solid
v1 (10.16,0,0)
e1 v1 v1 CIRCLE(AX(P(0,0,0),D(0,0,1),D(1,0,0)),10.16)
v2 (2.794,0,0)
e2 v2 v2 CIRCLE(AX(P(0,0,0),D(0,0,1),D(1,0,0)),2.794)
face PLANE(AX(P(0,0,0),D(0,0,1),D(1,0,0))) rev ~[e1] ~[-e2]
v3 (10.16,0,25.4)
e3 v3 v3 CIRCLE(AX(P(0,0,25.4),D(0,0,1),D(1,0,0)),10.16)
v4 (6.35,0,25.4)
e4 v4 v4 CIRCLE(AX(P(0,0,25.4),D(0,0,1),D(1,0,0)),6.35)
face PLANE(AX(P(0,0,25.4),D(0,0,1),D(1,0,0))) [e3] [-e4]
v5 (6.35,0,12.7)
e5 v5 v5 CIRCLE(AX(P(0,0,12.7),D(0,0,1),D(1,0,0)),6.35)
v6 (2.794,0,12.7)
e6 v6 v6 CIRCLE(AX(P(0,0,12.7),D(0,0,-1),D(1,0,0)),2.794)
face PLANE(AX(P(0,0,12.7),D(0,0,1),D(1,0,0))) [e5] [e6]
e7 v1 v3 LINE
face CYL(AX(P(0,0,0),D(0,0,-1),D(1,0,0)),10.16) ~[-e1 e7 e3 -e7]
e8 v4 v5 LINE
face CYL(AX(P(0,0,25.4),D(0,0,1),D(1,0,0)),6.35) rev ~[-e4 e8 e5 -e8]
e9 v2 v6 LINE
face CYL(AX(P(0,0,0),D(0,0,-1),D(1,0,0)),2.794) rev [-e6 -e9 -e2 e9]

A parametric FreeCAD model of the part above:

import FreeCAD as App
import Part
import Sketcher

V = App.Vector
Q = App.Units.Quantity

doc = App.newDocument("Part")
body = doc.addObject("PartDesign::Body", "Body")

sketch1 = body.newObject("Sketcher::SketchObject", "Sketch")
sketch1.AttachmentSupport = (doc.getObject("XY_Plane"), [""])
sketch1.MapMode = "FlatFace"
sketch1.addGeometry(Part.Circle(V(0, 0, 0), V(0, 0, 1), 10), False)
sketch1.addConstraint([
    Sketcher.Constraint("Coincident", 0, 3, -1, 1),
    Sketcher.Constraint("Diameter", 0, Q("0.8 in")),
])
pad1 = body.newObject("PartDesign::Pad", "Pad")
pad1.Profile = sketch1
pad1.Length = Q("1 in")

sketch2 = body.newObject("Sketcher::SketchObject", "Sketch001")
sketch2.AttachmentSupport = (doc.getObject("XY_Plane"), [""])
sketch2.MapMode = "FlatFace"
sketch2.addGeometry(Part.Circle(V(0, 0, 0), V(0, 0, 1), 2.8), False)
sketch2.addConstraint([
    Sketcher.Constraint("Coincident", 0, 3, -1, 1),
    Sketcher.Constraint("Diameter", 0, Q("0.22 in")),
])
pocket1 = body.newObject("PartDesign::Pocket", "Pocket")
pocket1.Profile = sketch2
pocket1.Length = Q("3 in")
pocket1.Reversed = True

sketch3 = body.newObject("Sketcher::SketchObject", "Sketch002")
sketch3.AttachmentSupport = (doc.getObject("XY_Plane"), [""])
sketch3.MapMode = "FlatFace"
sketch3.AttachmentOffset = App.Placement(V(0, 0, 1 * 25.4), App.Rotation())
sketch3.addGeometry(Part.Circle(V(0, 0, 0), V(0, 0, 1), 6), False)
sketch3.addConstraint([
    Sketcher.Constraint("Coincident", 0, 3, -1, 1),
    Sketcher.Constraint("Diameter", 0, Q("0.5 in")),
])
pocket2 = body.newObject("PartDesign::Pocket", "Pocket001")
pocket2.Profile = sketch3
pocket2.Length = Q("0.5 in")

doc.recompute()
